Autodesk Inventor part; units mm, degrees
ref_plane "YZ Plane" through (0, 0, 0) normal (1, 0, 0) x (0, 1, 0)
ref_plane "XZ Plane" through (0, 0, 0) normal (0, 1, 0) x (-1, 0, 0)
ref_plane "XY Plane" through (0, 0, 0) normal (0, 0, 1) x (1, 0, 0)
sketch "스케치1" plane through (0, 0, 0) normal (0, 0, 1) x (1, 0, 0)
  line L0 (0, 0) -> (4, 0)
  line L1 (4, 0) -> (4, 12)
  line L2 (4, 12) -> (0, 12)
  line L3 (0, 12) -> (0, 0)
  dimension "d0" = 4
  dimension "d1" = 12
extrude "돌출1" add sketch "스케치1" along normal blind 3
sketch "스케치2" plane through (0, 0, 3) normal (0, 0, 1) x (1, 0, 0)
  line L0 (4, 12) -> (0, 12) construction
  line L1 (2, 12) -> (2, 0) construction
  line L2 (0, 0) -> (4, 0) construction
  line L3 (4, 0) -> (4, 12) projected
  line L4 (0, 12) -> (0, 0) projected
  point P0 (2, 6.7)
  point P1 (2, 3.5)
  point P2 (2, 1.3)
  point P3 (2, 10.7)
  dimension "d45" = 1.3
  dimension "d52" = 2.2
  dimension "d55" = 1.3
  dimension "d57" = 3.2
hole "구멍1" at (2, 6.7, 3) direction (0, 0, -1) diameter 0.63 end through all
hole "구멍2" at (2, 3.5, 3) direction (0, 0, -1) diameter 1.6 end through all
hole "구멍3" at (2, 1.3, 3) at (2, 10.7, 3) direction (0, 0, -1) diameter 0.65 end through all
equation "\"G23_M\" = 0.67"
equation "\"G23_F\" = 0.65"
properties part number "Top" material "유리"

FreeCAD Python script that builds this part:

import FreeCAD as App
import Part
import Sketcher

V = App.Vector


def add_polygon(sketch, points):
    """Adds a closed chain of lines whose ends are joined by coincident constraints."""
    first, n = sketch.GeometryCount, len(points)
    for a, b in zip(points, points[1:] + points[:1]):
        sketch.addGeometry(Part.LineSegment(App.Vector(*a, 0), App.Vector(*b, 0)), False)
    for i in range(n):
        sketch.addConstraint(Sketcher.Constraint("Coincident", first + i, 2, first + (i + 1) % n, 1))

doc = App.newDocument("Part")
body = doc.addObject("PartDesign::Body", "Body")

# Sketch on XY plane
sketch1 = doc.addObject("Sketcher::SketchObject", "Sketch")
body.addObject(sketch1)
sketch1.AttachmentSupport = (doc.XY_Plane, [""])
sketch1.MapMode = "FlatFace"
add_polygon(sketch1, [(0, 12), (0, 0), (4, 0), (4, 12)])  # lines 0-3
sketch1.addConstraint([
    Sketcher.Constraint("Vertical", 0),
    Sketcher.Constraint("Horizontal", 1),
    Sketcher.Constraint("Vertical", 2),
    Sketcher.Constraint("Horizontal", 3),
    Sketcher.Constraint("Coincident", 0, 2, -1, 1),
    Sketcher.Constraint("DistanceX", 1, 1, 1, 2, 4.0),
    Sketcher.Constraint("DistanceY", 0, 2, 0, 1, 12.0),
])
pad1 = doc.addObject("PartDesign::Pad", "Pad")
body.addObject(pad1)
pad1.Profile = sketch1
pad1.Length = 3

# Sketch on XY plane
sketch2 = doc.addObject("Sketcher::SketchObject", "Sketch001")
body.addObject(sketch2)
sketch2.AttachmentSupport = (doc.XY_Plane, [""])
sketch2.MapMode = "FlatFace"
sketch2.AttachmentOffset = App.Placement(V(0, 0, 3), App.Rotation())
sketch2.addGeometry(Part.Circle(V(2, 6.7, 0), V(0, 0, 1), 0.315), False)
sketch2.addConstraint([
    Sketcher.Constraint("Diameter", 0, 0.63),
    Sketcher.Constraint("DistanceX", -1, 1, 0, 3, 2.0),
    Sketcher.Constraint("DistanceY", -1, 1, 0, 3, 6.7),
])
doc.recompute()
hole = doc.addObject("PartDesign::Hole", "Hole")
body.addObject(hole)
hole.Profile = sketch2
hole.ThreadType = "None"
hole.Diameter = 0.63
hole.DepthType = "ThroughAll"

# Sketch on XY plane
sketch3 = doc.addObject("Sketcher::SketchObject", "Sketch002")
body.addObject(sketch3)
sketch3.AttachmentSupport = (doc.XY_Plane, [""])
sketch3.MapMode = "FlatFace"
sketch3.AttachmentOffset = App.Placement(V(0, 0, 3), App.Rotation())
sketch3.addGeometry(Part.Circle(V(2, 3.5, 0), V(0, 0, 1), 0.8), False)
sketch3.addConstraint([
    Sketcher.Constraint("Diameter", 0, 1.6),
    Sketcher.Constraint("DistanceX", -1, 1, 0, 3, 2.0),
    Sketcher.Constraint("DistanceY", -1, 1, 0, 3, 3.5),
])
doc.recompute()
hole2 = doc.addObject("PartDesign::Hole", "Hole001")
body.addObject(hole2)
hole2.Profile = sketch3
hole2.ThreadType = "None"
hole2.Diameter = 1.6
hole2.DepthType = "ThroughAll"

# Sketch on XY plane
sketch4 = doc.addObject("Sketcher::SketchObject", "Sketch003")
body.addObject(sketch4)
sketch4.AttachmentSupport = (doc.XY_Plane, [""])
sketch4.MapMode = "FlatFace"
sketch4.AttachmentOffset = App.Placement(V(0, 0, 3), App.Rotation())
sketch4.addGeometry([
    Part.Circle(V(2, 1.3, 0), V(0, 0, 1), 0.325),
    Part.Circle(V(2, 10.7, 0), V(0, 0, 1), 0.325),
], False)
sketch4.addConstraint([
    Sketcher.Constraint("Equal", 0, 1),
    Sketcher.Constraint("Vertical", 0, 3, 1, 3),
    Sketcher.Constraint("Diameter", 0, 0.65),
    Sketcher.Constraint("DistanceX", -1, 1, 0, 3, 2.0),
    Sketcher.Constraint("DistanceY", -1, 1, 0, 3, 1.3),
    Sketcher.Constraint("DistanceY", -1, 1, 1, 3, 10.7),
])
doc.recompute()
hole3 = doc.addObject("PartDesign::Hole", "Hole002")
body.addObject(hole3)
hole3.Profile = sketch4
hole3.ThreadType = "None"
hole3.Diameter = 0.65
hole3.DepthType = "ThroughAll"

doc.recompute()
